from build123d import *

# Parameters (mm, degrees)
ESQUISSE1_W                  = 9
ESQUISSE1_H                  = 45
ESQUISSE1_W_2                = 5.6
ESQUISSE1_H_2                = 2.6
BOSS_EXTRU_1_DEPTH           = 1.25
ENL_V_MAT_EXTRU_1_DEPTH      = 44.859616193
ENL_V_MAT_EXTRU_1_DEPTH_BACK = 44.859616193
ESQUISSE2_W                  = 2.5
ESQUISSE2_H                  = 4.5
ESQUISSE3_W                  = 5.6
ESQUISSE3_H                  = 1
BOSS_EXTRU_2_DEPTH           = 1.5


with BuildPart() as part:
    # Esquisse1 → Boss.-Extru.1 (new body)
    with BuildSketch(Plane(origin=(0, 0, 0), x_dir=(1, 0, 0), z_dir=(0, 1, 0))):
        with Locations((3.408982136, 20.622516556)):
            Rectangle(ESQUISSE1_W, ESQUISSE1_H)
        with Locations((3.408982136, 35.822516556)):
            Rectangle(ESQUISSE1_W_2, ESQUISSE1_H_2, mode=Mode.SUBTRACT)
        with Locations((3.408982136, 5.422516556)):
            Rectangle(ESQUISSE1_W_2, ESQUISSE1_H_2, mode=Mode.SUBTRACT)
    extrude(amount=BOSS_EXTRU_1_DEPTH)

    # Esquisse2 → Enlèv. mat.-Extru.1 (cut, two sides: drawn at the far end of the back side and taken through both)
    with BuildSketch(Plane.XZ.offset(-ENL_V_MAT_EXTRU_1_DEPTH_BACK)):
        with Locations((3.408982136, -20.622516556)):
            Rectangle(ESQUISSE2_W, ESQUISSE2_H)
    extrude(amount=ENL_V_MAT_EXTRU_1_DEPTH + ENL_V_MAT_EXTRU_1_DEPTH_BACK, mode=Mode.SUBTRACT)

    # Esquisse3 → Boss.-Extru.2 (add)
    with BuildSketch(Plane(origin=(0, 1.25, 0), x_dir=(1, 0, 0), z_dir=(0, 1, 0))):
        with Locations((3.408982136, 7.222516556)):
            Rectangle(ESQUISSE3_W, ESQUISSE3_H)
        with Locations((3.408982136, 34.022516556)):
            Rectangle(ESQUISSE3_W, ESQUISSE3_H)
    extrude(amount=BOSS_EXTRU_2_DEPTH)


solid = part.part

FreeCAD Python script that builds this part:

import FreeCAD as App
import Part
import Sketcher

doc = App.newDocument("Part")
body = doc.addObject("PartDesign::Body", "Body")

sketch1 = body.newObject("Sketcher::SketchObject", "Sketch")
sketch1.AttachmentSupport = (doc.getObject("XZ_Plane"), [""])
sketch1.MapMode = "FlatFace"
sketch1.addGeometry(Part.LineSegment(App.Vector(-1.1, -43.1, 0), App.Vector(-1.1, 1.9, 0)), False)
sketch1.addGeometry(Part.LineSegment(App.Vector(-1.1, 1.9, 0), App.Vector(7.9, 1.9, 0)), False)
sketch1.addGeometry(Part.LineSegment(App.Vector(7.9, 1.9, 0), App.Vector(7.9, -43.1, 0)), False)
sketch1.addGeometry(Part.LineSegment(App.Vector(7.9, -43.1, 0), App.Vector(-1.1, -43.1, 0)), False)
sketch1.addGeometry(Part.LineSegment(App.Vector(6.2, -4.1, 0), App.Vector(0.6, -4.1, 0)), False)
sketch1.addGeometry(Part.LineSegment(App.Vector(0.6, -4.1, 0), App.Vector(0.6, -6.7, 0)), False)
sketch1.addGeometry(Part.LineSegment(App.Vector(0.6, -6.7, 0), App.Vector(6.2, -6.7, 0)), False)
sketch1.addGeometry(Part.LineSegment(App.Vector(6.2, -6.7, 0), App.Vector(6.2, -4.1, 0)), False)
sketch1.addGeometry(Part.LineSegment(App.Vector(6.2, -34.5, 0), App.Vector(0.6, -34.5, 0)), False)
sketch1.addGeometry(Part.LineSegment(App.Vector(0.6, -34.5, 0), App.Vector(0.6, -37.1, 0)), False)
sketch1.addGeometry(Part.LineSegment(App.Vector(0.6, -37.1, 0), App.Vector(6.2, -37.1, 0)), False)
sketch1.addGeometry(Part.LineSegment(App.Vector(6.2, -37.1, 0), App.Vector(6.2, -34.5, 0)), False)
sketch1.addConstraint(Sketcher.Constraint("Coincident", 0, 2, 1, 1))
sketch1.addConstraint(Sketcher.Constraint("Coincident", 1, 2, 2, 1))
sketch1.addConstraint(Sketcher.Constraint("Coincident", 2, 2, 3, 1))
sketch1.addConstraint(Sketcher.Constraint("Coincident", 3, 2, 0, 1))
sketch1.addConstraint(Sketcher.Constraint("Coincident", 4, 2, 5, 1))
sketch1.addConstraint(Sketcher.Constraint("Coincident", 5, 2, 6, 1))
sketch1.addConstraint(Sketcher.Constraint("Coincident", 6, 2, 7, 1))
sketch1.addConstraint(Sketcher.Constraint("Coincident", 7, 2, 4, 1))
sketch1.addConstraint(Sketcher.Constraint("Coincident", 8, 2, 9, 1))
sketch1.addConstraint(Sketcher.Constraint("Coincident", 9, 2, 10, 1))
sketch1.addConstraint(Sketcher.Constraint("Coincident", 10, 2, 11, 1))
sketch1.addConstraint(Sketcher.Constraint("Coincident", 11, 2, 8, 1))
sketch1.addConstraint(Sketcher.Constraint("Vertical", 0))
sketch1.addConstraint(Sketcher.Constraint("Horizontal", 1))
sketch1.addConstraint(Sketcher.Constraint("Vertical", 2))
sketch1.addConstraint(Sketcher.Constraint("Horizontal", 3))
sketch1.addConstraint(Sketcher.Constraint("Horizontal", 4))
sketch1.addConstraint(Sketcher.Constraint("Vertical", 5))
sketch1.addConstraint(Sketcher.Constraint("Horizontal", 6))
sketch1.addConstraint(Sketcher.Constraint("Vertical", 7))
sketch1.addConstraint(Sketcher.Constraint("Horizontal", 8))
sketch1.addConstraint(Sketcher.Constraint("Vertical", 9))
sketch1.addConstraint(Sketcher.Constraint("Horizontal", 10))
sketch1.addConstraint(Sketcher.Constraint("Vertical", 11))
sketch1.addConstraint(Sketcher.Constraint("Vertical", 5, 2, 8, 2))
sketch1.addConstraint(Sketcher.Constraint("Vertical", 7, 2, 10, 2))
sketch1.addConstraint(Sketcher.Constraint("Equal", 7, 9))
sketch1.addConstraint(Sketcher.Constraint("DistanceX", 1, 1, 1, 2, 9.0))
sketch1.addConstraint(Sketcher.Constraint("DistanceY", 0, 1, 0, 2, 45.0))
sketch1.addConstraint(Sketcher.Constraint("DistanceX", 4, 2, 4, 1, 5.6))
sketch1.addConstraint(Sketcher.Constraint("DistanceY", 5, 2, 5, 1, 2.6))
sketch1.addConstraint(Sketcher.Constraint("DistanceY", 4, 2, 0, 2, 6.0))
sketch1.addConstraint(Sketcher.Constraint("DistanceY", 3, 2, 9, 2, 6.0))
sketch1.addConstraint(Sketcher.Constraint("DistanceX", 0, 2, 4, 2, 1.7))
sketch1.addConstraint(Sketcher.Constraint("DistanceX", 0, 2, -1, 1, 1.091018))
sketch1.addConstraint(Sketcher.Constraint("DistanceY", -1, 1, 0, 2, 1.877483))
pad1 = body.newObject("PartDesign::Pad", "Pad")
pad1.Profile = sketch1
pad1.Length = 1.25
pad1.Reversed = True

sketch2 = body.newObject("Sketcher::SketchObject", "Sketch001")
sketch2.AttachmentSupport = (doc.getObject("XZ_Plane"), [""])
sketch2.MapMode = "FlatFace"
sketch2.addGeometry(Part.LineSegment(App.Vector(2.2, -18.4, 0), App.Vector(2.2, -22.9, 0)), False)
sketch2.addGeometry(Part.LineSegment(App.Vector(2.2, -22.9, 0), App.Vector(4.7, -22.9, 0)), False)
sketch2.addGeometry(Part.LineSegment(App.Vector(4.7, -22.9, 0), App.Vector(4.7, -18.4, 0)), False)
sketch2.addGeometry(Part.LineSegment(App.Vector(4.7, -18.4, 0), App.Vector(2.2, -18.4, 0)), False)
sketch2.addConstraint(Sketcher.Constraint("Coincident", 0, 2, 1, 1))
sketch2.addConstraint(Sketcher.Constraint("Coincident", 1, 2, 2, 1))
sketch2.addConstraint(Sketcher.Constraint("Coincident", 2, 2, 3, 1))
sketch2.addConstraint(Sketcher.Constraint("Coincident", 3, 2, 0, 1))
sketch2.addConstraint(Sketcher.Constraint("Vertical", 0))
sketch2.addConstraint(Sketcher.Constraint("Horizontal", 1))
sketch2.addConstraint(Sketcher.Constraint("Vertical", 2))
sketch2.addConstraint(Sketcher.Constraint("Horizontal", 3))
sketch2.addConstraint(Sketcher.Constraint("DistanceX", 1, 1, 1, 2, 2.5))
sketch2.addConstraint(Sketcher.Constraint("DistanceY", 0, 2, 0, 1, 4.5))
sketch2.addConstraint(Sketcher.Constraint("DistanceX", -1, 1, 0, 2, 2.158982))
sketch2.addConstraint(Sketcher.Constraint("DistanceY", 0, 2, -1, 1, 22.872517))
pocket1 = body.newObject("PartDesign::Pocket", "Pocket")
pocket1.Profile = sketch2
pocket1.Type = "ThroughAll"
pocket1.Midplane = True

sketch3 = body.newObject("Sketcher::SketchObject", "Sketch002")
sketch3.AttachmentSupport = (doc.getObject("XZ_Plane"), [""])
sketch3.MapMode = "FlatFace"
sketch3.AttachmentOffset = App.Placement(App.Vector(0, 0, -1.25), App.Rotation())
sketch3.addGeometry(Part.LineSegment(App.Vector(0.6, -7.7, 0), App.Vector(0.6, -6.7, 0)), False)
sketch3.addGeometry(Part.LineSegment(App.Vector(0.6, -6.7, 0), App.Vector(6.2, -6.7, 0)), False)
sketch3.addGeometry(Part.LineSegment(App.Vector(6.2, -6.7, 0), App.Vector(6.2, -7.7, 0)), False)
sketch3.addGeometry(Part.LineSegment(App.Vector(6.2, -7.7, 0), App.Vector(0.6, -7.7, 0)), False)
sketch3.addGeometry(Part.LineSegment(App.Vector(0.6, -34.5, 0), App.Vector(0.6, -33.5, 0)), False)
sketch3.addGeometry(Part.LineSegment(App.Vector(0.6, -33.5, 0), App.Vector(6.2, -33.5, 0)), False)
sketch3.addGeometry(Part.LineSegment(App.Vector(6.2, -33.5, 0), App.Vector(6.2, -34.5, 0)), False)
sketch3.addGeometry(Part.LineSegment(App.Vector(6.2, -34.5, 0), App.Vector(0.6, -34.5, 0)), False)
sketch3.addConstraint(Sketcher.Constraint("Coincident", 0, 2, 1, 1))
sketch3.addConstraint(Sketcher.Constraint("Coincident", 1, 2, 2, 1))
sketch3.addConstraint(Sketcher.Constraint("Coincident", 2, 2, 3, 1))
sketch3.addConstraint(Sketcher.Constraint("Coincident", 3, 2, 0, 1))
sketch3.addConstraint(Sketcher.Constraint("Coincident", 4, 2, 5, 1))
sketch3.addConstraint(Sketcher.Constraint("Coincident", 5, 2, 6, 1))
sketch3.addConstraint(Sketcher.Constraint("Coincident", 6, 2, 7, 1))
sketch3.addConstraint(Sketcher.Constraint("Coincident", 7, 2, 4, 1))
sketch3.addConstraint(Sketcher.Constraint("Vertical", 0))
sketch3.addConstraint(Sketcher.Constraint("Horizontal", 1))
sketch3.addConstraint(Sketcher.Constraint("Vertical", 2))
sketch3.addConstraint(Sketcher.Constraint("Horizontal", 3))
sketch3.addConstraint(Sketcher.Constraint("Vertical", 4))
sketch3.addConstraint(Sketcher.Constraint("Horizontal", 5))
sketch3.addConstraint(Sketcher.Constraint("Vertical", 6))
sketch3.addConstraint(Sketcher.Constraint("Horizontal", 7))
sketch3.addConstraint(Sketcher.Constraint("Vertical", 3, 2, 4, 2))
sketch3.addConstraint(Sketcher.Constraint("Vertical", 2, 2, 5, 2))
sketch3.addConstraint(Sketcher.Constraint("Equal", 2, 4))
sketch3.addConstraint(Sketcher.Constraint("DistanceY", 0, 1, 0, 2, 1.0))
sketch3.addConstraint(Sketcher.Constraint("DistanceX", 1, 1, 1, 2, 5.6))
sketch3.addConstraint(Sketcher.Constraint("DistanceY", 4, 2, 3, 2, 25.8))
sketch3.addConstraint(Sketcher.Constraint("DistanceX", -1, 1, 0, 2, 0.608982))
sketch3.addConstraint(Sketcher.Constraint("DistanceY", 0, 2, -1, 1, 6.722517))
pad2 = body.newObject("PartDesign::Pad", "Pad001")
pad2.Profile = sketch3
pad2.Length = 1.5
pad2.Reversed = True

doc.recompute()
